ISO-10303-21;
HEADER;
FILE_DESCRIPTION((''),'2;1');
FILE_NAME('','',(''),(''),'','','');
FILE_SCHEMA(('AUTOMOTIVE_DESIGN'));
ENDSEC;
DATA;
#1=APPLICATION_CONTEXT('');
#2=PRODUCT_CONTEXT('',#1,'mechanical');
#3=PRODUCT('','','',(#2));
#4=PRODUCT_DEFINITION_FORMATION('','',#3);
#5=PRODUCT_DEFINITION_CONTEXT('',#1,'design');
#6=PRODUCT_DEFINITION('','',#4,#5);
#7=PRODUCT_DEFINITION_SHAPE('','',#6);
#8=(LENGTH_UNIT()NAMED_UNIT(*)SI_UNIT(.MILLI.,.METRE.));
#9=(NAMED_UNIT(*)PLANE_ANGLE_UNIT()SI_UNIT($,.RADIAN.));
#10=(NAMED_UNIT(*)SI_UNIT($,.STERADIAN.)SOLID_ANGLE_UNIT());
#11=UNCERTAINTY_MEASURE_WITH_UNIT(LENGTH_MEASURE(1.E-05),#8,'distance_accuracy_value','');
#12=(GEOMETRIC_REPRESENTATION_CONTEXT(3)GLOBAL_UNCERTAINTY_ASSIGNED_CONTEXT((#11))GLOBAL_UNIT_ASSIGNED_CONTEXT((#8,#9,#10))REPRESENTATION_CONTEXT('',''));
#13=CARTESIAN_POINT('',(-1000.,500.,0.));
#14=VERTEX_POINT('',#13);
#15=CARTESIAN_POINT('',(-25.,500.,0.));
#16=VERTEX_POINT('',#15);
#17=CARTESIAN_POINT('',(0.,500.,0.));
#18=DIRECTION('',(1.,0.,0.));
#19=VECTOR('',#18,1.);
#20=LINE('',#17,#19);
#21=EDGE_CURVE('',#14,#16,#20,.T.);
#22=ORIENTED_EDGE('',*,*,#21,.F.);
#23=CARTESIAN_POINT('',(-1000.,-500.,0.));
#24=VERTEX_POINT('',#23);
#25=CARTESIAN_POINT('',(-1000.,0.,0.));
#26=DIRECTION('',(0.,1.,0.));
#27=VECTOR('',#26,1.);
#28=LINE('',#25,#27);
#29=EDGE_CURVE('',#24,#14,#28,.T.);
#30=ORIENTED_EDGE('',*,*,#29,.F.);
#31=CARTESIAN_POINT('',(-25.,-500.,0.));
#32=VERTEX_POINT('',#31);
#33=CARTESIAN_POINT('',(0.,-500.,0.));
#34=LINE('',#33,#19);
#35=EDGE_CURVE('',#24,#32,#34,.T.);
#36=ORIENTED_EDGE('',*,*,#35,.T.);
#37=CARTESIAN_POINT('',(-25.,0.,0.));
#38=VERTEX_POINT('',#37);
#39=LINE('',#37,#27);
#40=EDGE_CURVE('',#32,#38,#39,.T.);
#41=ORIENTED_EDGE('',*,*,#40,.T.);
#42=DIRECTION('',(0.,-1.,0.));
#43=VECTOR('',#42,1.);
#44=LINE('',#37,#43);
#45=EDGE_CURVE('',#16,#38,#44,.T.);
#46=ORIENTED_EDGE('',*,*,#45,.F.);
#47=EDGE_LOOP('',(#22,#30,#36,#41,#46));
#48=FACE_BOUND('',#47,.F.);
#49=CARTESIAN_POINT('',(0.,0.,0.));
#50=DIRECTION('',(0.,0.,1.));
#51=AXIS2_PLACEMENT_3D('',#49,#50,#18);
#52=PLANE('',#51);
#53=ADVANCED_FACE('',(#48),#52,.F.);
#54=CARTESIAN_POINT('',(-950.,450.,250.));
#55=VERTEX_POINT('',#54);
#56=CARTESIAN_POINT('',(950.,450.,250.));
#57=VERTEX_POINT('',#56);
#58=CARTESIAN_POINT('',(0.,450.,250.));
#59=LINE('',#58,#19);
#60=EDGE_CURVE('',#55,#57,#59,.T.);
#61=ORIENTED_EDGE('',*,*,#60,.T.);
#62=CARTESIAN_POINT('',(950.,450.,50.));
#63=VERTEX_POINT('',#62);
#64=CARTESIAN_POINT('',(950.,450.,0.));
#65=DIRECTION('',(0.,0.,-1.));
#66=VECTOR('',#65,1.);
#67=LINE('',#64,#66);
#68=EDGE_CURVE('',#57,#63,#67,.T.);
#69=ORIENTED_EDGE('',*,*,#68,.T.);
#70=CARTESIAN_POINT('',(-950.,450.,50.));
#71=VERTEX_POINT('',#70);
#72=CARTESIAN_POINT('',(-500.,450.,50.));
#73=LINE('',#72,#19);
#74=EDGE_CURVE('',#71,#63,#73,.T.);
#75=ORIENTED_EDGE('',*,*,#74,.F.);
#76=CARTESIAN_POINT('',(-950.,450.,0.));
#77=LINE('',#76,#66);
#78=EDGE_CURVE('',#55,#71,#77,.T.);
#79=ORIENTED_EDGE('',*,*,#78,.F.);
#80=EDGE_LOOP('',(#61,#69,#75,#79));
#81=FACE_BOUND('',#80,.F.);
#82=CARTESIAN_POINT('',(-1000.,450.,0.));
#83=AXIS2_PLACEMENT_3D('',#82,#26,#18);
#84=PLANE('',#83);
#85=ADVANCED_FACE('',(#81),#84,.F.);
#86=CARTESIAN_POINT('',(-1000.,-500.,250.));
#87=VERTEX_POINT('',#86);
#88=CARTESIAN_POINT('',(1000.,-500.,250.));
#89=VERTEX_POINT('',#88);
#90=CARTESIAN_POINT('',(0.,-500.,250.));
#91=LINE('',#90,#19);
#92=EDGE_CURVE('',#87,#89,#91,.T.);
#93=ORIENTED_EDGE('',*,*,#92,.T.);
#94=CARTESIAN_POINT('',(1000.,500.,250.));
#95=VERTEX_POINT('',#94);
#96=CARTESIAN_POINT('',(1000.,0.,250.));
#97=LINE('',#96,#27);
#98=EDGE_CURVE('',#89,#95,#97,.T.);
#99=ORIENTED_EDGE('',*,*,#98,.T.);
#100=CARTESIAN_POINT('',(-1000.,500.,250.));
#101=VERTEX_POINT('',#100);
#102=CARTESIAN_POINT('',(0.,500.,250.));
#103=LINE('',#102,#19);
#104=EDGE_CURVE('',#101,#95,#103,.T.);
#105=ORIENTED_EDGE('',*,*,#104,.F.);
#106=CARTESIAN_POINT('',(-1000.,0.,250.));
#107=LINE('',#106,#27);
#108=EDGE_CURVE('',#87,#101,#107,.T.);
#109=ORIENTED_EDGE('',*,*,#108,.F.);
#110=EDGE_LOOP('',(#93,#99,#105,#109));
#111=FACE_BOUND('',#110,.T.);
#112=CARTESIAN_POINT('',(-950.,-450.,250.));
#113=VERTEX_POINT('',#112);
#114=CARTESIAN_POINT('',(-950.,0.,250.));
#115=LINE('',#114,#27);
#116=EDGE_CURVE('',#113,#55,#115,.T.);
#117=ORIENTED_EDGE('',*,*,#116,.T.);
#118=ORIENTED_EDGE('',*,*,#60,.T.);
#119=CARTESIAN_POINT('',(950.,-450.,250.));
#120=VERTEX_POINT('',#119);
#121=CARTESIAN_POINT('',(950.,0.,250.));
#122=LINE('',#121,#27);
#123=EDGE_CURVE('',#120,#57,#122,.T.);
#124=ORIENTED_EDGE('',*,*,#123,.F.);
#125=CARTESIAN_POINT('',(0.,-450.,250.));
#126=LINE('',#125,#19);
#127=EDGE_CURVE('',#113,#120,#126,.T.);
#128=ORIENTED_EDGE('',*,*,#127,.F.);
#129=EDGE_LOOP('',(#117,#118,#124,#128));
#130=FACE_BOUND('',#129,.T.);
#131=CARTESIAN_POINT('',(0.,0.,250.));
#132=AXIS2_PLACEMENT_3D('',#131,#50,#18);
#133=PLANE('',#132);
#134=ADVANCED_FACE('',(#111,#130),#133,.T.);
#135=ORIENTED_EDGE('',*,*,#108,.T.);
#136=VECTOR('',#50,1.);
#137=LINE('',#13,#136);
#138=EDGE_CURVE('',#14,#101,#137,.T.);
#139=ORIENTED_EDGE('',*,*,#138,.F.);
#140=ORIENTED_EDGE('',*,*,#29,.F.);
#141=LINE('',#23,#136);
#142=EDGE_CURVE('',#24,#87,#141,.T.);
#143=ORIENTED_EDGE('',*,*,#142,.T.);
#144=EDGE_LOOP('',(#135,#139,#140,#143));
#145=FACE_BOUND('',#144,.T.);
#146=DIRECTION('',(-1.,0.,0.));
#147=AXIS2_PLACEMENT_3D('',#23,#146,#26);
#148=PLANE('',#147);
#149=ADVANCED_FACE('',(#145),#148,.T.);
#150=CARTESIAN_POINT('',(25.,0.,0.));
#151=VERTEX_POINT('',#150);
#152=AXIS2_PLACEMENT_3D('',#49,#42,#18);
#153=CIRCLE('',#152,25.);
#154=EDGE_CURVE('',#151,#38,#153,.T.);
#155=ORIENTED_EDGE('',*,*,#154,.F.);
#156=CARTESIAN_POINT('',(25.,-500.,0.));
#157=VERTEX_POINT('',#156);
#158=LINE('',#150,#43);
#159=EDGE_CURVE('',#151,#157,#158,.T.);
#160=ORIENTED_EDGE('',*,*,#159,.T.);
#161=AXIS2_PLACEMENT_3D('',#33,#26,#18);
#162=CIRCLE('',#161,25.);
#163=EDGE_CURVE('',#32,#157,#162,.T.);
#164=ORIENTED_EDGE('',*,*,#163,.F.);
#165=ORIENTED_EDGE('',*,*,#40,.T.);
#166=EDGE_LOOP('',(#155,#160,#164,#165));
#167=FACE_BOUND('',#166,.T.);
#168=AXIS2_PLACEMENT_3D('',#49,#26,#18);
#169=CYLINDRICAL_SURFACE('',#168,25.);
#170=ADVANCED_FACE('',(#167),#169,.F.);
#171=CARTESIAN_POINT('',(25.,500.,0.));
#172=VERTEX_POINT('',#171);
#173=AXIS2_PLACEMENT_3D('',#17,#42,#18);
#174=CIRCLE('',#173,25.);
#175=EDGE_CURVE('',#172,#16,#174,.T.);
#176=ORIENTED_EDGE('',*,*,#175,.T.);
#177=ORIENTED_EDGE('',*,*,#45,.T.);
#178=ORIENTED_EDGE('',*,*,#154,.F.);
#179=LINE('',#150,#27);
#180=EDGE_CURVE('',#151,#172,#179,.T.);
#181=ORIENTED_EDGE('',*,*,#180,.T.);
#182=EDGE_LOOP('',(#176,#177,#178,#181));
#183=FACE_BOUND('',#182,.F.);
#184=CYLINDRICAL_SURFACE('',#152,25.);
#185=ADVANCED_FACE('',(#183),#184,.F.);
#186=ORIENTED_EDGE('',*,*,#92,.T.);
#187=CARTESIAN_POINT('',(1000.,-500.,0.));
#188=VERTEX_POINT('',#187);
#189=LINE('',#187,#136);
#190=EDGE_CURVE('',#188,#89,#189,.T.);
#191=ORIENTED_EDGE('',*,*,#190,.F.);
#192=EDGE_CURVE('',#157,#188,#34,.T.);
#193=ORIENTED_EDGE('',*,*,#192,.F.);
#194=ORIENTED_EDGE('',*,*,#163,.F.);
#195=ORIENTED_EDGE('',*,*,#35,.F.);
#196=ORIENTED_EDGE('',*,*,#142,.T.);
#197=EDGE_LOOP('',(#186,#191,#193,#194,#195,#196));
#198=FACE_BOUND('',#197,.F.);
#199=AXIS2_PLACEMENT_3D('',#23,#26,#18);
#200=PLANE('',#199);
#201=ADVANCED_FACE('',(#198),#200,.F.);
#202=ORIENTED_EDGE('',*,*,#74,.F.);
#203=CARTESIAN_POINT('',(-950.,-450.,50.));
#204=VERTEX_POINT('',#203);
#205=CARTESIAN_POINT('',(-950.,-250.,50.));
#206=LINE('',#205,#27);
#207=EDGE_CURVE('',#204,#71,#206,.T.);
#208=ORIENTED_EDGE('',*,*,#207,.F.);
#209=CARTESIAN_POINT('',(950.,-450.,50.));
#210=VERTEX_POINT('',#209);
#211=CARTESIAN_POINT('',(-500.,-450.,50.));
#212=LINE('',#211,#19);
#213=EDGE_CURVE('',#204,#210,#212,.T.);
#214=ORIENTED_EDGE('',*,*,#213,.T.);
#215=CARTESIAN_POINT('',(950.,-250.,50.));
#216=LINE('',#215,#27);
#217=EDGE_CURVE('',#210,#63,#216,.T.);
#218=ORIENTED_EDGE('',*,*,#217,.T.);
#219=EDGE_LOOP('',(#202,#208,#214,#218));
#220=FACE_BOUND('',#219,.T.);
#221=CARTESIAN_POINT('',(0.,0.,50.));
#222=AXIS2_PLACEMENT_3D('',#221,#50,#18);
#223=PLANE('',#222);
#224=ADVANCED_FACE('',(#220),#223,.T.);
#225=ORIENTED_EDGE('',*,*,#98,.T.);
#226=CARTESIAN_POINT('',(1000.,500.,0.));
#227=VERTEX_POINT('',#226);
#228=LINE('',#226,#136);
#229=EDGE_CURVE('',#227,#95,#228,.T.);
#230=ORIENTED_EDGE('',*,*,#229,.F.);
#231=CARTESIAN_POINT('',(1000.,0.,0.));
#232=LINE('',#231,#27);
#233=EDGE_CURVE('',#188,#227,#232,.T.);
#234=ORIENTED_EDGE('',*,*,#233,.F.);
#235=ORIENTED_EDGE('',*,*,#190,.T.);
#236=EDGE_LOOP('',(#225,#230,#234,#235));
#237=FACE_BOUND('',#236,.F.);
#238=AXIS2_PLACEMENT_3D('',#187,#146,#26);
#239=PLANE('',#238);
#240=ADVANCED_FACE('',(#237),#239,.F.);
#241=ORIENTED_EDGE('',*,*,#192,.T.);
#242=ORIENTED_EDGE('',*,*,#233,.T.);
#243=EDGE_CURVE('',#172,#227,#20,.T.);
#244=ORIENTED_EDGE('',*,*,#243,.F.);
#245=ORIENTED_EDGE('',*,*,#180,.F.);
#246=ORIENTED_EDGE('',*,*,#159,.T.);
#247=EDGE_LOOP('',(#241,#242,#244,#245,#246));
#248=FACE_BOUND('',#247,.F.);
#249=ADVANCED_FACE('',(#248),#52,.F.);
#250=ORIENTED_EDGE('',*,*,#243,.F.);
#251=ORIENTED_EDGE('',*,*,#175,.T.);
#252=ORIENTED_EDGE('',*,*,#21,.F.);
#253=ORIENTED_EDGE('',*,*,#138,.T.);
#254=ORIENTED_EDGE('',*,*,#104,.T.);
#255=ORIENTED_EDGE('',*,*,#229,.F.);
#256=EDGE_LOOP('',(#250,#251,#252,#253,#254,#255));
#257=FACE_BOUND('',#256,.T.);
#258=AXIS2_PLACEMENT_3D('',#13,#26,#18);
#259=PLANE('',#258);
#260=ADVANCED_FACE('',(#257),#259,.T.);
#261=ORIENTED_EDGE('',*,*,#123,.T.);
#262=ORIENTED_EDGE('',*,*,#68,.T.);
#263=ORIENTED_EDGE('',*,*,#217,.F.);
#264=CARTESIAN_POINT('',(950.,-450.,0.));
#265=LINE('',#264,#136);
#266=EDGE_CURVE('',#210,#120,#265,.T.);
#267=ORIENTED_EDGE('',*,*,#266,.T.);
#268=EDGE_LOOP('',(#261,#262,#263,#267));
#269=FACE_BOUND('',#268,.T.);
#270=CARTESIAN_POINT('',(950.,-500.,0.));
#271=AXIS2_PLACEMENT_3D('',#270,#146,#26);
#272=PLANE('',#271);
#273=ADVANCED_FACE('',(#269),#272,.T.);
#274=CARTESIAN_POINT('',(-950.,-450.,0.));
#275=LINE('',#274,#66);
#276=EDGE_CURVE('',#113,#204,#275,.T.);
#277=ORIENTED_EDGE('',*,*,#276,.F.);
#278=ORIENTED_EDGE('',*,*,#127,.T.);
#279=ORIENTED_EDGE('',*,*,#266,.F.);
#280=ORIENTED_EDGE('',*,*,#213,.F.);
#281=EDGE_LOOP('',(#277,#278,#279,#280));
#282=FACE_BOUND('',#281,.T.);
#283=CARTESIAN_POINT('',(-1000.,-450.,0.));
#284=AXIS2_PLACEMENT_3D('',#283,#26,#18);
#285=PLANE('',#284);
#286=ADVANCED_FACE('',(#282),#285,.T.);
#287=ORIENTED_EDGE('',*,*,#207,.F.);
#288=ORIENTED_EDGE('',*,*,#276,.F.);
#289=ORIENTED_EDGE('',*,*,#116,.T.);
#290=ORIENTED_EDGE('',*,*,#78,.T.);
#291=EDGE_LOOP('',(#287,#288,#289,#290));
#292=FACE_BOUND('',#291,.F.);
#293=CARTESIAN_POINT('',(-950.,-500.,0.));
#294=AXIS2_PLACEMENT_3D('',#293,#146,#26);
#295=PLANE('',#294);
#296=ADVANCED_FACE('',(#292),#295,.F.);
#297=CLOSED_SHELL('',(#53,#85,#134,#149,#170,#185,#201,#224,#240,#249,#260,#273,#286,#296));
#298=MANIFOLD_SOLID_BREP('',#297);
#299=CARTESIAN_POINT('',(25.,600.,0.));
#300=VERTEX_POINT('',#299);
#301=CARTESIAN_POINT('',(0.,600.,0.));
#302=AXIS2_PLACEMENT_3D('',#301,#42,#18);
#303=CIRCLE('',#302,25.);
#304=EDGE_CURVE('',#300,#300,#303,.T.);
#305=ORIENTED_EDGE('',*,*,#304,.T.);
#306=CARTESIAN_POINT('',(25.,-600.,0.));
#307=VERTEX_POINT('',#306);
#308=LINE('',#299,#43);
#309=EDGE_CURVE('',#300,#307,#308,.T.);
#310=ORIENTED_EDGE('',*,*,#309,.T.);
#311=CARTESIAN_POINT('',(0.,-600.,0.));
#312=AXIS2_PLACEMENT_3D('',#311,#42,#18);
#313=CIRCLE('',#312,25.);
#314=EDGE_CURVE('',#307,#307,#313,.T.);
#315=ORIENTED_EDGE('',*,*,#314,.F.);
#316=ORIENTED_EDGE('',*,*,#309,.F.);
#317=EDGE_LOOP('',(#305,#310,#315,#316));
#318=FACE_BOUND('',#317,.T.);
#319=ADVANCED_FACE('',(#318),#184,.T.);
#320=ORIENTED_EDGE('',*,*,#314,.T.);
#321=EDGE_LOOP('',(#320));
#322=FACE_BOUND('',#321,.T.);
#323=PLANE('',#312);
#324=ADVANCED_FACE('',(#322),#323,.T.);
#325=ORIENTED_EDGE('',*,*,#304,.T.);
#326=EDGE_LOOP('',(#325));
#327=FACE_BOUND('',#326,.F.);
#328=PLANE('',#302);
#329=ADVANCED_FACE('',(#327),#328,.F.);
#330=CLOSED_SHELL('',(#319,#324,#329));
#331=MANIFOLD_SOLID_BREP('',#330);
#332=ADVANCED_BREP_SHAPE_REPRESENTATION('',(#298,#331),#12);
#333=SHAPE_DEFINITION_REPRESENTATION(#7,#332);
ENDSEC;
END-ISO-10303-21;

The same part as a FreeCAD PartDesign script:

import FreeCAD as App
import Part
import Sketcher

V = App.Vector


def faces_at(feature, points):
    """Names of the faces that lie closest to the given points."""
    faces = feature.Shape.Faces
    near = lambda p: min(range(len(faces)), key=lambda i: faces[i].distToShape(Part.Vertex(*p))[0])
    return sorted({f"Face{near(p) + 1}" for p in points})

doc = App.newDocument("Part")
body = doc.addObject("PartDesign::Body", "Body")

# Sketch on XY plane
sketch1 = doc.addObject("Sketcher::SketchObject", "Sketch")
body.addObject(sketch1)
sketch1.AttachmentSupport = (doc.XY_Plane, [""])
sketch1.MapMode = "FlatFace"
sketch1.addGeometry([
    Part.LineSegment(V(-1000, 500, 0), V(-1000, -500, 0)),
    Part.LineSegment(V(-1000, -500, 0), V(1000, -500, 0)),
    Part.LineSegment(V(1000, -500, 0), V(1000, 500, 0)),
    Part.LineSegment(V(1000, 500, 0), V(-1000, 500, 0)),
], False)
sketch1.addConstraint([
    Sketcher.Constraint("Coincident", 0, 2, 1, 1),
    Sketcher.Constraint("Coincident", 1, 2, 2, 1),
    Sketcher.Constraint("Coincident", 2, 2, 3, 1),
    Sketcher.Constraint("Coincident", 3, 2, 0, 1),
    Sketcher.Constraint("Vertical", 0),
    Sketcher.Constraint("Horizontal", 1),
    Sketcher.Constraint("Vertical", 2),
    Sketcher.Constraint("Horizontal", 3),
    Sketcher.Constraint("Symmetric", 0, 2, 2, 2, -1, 1),
    Sketcher.Constraint("DistanceX", 1, 1, 1, 2, 2000.0),
    Sketcher.Constraint("DistanceY", 0, 2, 0, 1, 1000.0),
])
pad1 = doc.addObject("PartDesign::Pad", "Pad")
body.addObject(pad1)
pad1.Profile = sketch1
pad1.Length = 250
doc.recompute()

thickness = doc.addObject("PartDesign::Thickness", "Thickness")
body.addObject(thickness)
thickness.Base = (pad1, faces_at(pad1, [(0, 0, 250)]))
thickness.Value = 50
thickness.Reversed = True
thickness.Join = "Arc"

# Sketch on XZ plane
sketch2 = doc.addObject("Sketcher::SketchObject", "Sketch001")
body.addObject(sketch2)
sketch2.AttachmentSupport = (doc.XZ_Plane, [""])
sketch2.MapMode = "FlatFace"
sketch2.addGeometry(Part.Circle(V(0, 0, 0), V(0, 0, 1), 25), False)
sketch2.addConstraint([
    Sketcher.Constraint("Coincident", 0, 3, -1, 1),
    Sketcher.Constraint("Diameter", 0, 50.0),
])
pocket1 = doc.addObject("PartDesign::Pocket", "Pocket")
body.addObject(pocket1)
pocket1.Profile = sketch2
pocket1.Type = "ThroughAll"
pocket1.Midplane = True
body2 = doc.addObject("PartDesign::Body", "Body001")

# Sketch on XZ plane
sketch3 = doc.addObject("Sketcher::SketchObject", "Sketch002")
body2.addObject(sketch3)
sketch3.AttachmentSupport = (doc.getObject("XZ_Plane001"), [""])
sketch3.MapMode = "FlatFace"
sketch3.addGeometry(Part.Circle(V(0, 0, 0), V(0, 0, 1), 25), False)
sketch3.addConstraint([
    Sketcher.Constraint("Coincident", 0, 3, -1, 1),
    Sketcher.Constraint("Diameter", 0, 50.0),
])
pad2 = doc.addObject("PartDesign::Pad", "Pad001")
body2.addObject(pad2)
pad2.Profile = sketch3
pad2.Type = "TwoLengths"
pad2.Length = 600
pad2.Length2 = 600

doc.recompute()
